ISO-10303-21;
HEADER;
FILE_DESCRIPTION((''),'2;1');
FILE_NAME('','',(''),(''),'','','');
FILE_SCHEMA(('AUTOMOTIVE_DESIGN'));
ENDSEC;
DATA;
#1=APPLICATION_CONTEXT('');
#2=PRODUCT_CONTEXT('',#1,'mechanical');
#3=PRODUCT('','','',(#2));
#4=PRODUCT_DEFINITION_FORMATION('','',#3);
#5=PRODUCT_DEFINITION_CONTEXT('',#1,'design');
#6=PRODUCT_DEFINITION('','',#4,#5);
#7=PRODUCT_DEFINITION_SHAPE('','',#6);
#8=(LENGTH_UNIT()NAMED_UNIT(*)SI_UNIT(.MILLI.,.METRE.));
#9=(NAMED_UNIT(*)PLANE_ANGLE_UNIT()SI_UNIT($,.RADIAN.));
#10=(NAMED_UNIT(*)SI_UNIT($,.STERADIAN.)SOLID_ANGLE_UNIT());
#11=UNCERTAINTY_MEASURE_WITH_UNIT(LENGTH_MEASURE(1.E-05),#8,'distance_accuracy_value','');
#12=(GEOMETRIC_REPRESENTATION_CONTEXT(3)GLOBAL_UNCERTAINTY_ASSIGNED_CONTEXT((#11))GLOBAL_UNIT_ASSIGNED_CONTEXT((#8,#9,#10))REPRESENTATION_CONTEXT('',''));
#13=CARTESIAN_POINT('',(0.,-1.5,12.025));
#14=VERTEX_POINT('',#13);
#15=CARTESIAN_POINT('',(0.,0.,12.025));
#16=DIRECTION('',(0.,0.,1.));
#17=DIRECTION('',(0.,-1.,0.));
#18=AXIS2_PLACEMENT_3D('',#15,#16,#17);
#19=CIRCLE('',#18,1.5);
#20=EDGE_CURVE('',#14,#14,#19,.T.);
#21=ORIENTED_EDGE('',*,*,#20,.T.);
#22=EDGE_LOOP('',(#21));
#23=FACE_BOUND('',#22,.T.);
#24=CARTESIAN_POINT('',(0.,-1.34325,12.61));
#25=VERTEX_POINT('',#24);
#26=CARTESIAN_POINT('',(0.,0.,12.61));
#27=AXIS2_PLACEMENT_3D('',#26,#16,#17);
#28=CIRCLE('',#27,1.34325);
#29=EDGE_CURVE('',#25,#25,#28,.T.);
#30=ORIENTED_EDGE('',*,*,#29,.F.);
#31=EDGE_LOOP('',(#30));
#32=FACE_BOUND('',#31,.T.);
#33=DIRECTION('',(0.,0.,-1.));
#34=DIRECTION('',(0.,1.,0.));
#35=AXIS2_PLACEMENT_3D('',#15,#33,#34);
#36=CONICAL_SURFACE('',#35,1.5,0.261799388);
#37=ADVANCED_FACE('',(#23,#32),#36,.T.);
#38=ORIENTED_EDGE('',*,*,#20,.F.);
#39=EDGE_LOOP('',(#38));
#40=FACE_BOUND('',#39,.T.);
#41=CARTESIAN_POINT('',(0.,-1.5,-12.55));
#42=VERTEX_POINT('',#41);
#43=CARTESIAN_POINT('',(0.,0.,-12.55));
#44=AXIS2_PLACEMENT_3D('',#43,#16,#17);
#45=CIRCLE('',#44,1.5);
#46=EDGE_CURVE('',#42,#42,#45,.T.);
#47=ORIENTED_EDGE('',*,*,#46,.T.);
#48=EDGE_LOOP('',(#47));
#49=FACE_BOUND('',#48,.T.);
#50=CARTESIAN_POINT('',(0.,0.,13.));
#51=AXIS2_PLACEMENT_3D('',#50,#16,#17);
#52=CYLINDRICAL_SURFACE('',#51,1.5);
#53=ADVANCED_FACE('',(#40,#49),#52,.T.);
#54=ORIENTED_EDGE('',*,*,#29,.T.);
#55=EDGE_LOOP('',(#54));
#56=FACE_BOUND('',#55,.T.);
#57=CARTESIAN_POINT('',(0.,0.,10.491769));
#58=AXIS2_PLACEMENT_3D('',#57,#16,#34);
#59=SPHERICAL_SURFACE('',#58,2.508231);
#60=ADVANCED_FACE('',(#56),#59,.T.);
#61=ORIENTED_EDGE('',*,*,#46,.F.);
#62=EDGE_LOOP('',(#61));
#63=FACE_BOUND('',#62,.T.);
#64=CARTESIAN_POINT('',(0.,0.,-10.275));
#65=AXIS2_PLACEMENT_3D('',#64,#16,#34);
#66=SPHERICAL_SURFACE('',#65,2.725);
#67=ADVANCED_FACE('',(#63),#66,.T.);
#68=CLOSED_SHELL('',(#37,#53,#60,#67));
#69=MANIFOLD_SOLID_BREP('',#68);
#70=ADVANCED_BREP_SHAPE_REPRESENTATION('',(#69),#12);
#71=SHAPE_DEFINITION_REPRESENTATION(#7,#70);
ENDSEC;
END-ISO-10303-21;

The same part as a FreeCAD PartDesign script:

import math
import FreeCAD as App
import Part
import Sketcher
from FreeCAD import Vector
Q = App.Units.Quantity

doc = App.newDocument("Part")
body = doc.addObject("PartDesign::Body", "Body")

sketch1 = body.newObject("Sketcher::SketchObject", "Sketch")
sketch1.AttachmentSupport = (doc.getObject("YZ_Plane"), [""])
sketch1.MapMode = "FlatFace"
sketch1.addGeometry([
    Part.LineSegment(Vector(0, 13, 0), Vector(0, -13, 0)),
    Part.ArcOfCircle(Part.Circle(Vector(0, -10.275, 0), Vector(0, 0, 1), 2.725), math.radians(-90), math.radians(-56.601512)),
    Part.LineSegment(Vector(1.5, -12.55, 0), Vector(1.5, 12.025, 0)),
    Part.LineSegment(Vector(1.5, 12.025, 0), Vector(1.34325, 12.61, 0)),
    Part.ArcOfCircle(Part.Circle(Vector(0, 10.491769, 0), Vector(0, 0, 1), 2.508231), math.radians(57.619678), math.radians(90)),
], False)
sketch1.addConstraint([
    Sketcher.Constraint("Coincident", 0, 2, 1, 1),
    Sketcher.Constraint("Coincident", 1, 2, 2, 1),
    Sketcher.Constraint("Coincident", 2, 2, 3, 1),
    Sketcher.Constraint("Coincident", 3, 2, 4, 1),
    Sketcher.Constraint("Coincident", 4, 2, 0, 1),
    Sketcher.Constraint("Vertical", 0),
    Sketcher.Constraint("Vertical", 2),
    Sketcher.Constraint("Symmetric", 0, 2, 4, 2, -1, 1),
    Sketcher.Constraint("PointOnObject", 1, 3, -2),
    Sketcher.Constraint("PointOnObject", 4, 3, -2),
    Sketcher.Constraint("DistanceY", 0, 2, 0, 1, Q("26 mm")),
    Sketcher.Constraint("Angle", 3, Q("105 deg")),
    Sketcher.Constraint("Radius", 1, Q("2.725 mm")),
    Sketcher.Constraint("DistanceX", -1, 1, 1, 2, Q("1.5 mm")),
    Sketcher.Constraint("DistanceY", 1, 3, 2, 2, Q("22.3 mm")),
    Sketcher.Constraint("DistanceY", -1, 1, 3, 2, Q("12.61 mm")),
])
revolution = body.newObject("PartDesign::Revolution", "Revolution")
revolution.Profile = sketch1
revolution.ReferenceAxis = (sketch1, ["V_Axis"])
revolution.Angle = 360

doc.recompute()
